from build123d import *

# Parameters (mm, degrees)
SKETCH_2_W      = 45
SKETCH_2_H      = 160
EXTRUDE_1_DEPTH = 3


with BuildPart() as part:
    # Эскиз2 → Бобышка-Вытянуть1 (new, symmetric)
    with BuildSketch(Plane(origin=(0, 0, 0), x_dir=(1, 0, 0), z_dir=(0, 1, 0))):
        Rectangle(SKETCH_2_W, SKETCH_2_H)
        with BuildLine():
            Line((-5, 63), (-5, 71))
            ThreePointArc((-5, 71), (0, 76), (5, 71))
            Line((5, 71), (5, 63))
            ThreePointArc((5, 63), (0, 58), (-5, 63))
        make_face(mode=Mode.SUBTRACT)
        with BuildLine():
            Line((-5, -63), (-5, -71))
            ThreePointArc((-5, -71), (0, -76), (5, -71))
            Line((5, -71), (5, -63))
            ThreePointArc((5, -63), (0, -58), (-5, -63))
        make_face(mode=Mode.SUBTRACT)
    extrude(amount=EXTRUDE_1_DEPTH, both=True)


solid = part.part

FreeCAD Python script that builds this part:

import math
import FreeCAD as App
import Part
import Sketcher
Q = App.Units.Quantity


def add_polygon(sketch, points):
    """Adds a closed chain of lines whose ends are joined by coincident constraints."""
    first, n = sketch.GeometryCount, len(points)
    for a, b in zip(points, points[1:] + points[:1]):
        sketch.addGeometry(Part.LineSegment(App.Vector(*a, 0), App.Vector(*b, 0)), False)
    for i in range(n):
        sketch.addConstraint(Sketcher.Constraint("Coincident", first + i, 2, first + (i + 1) % n, 1))

doc = App.newDocument("Part")
body = doc.addObject("PartDesign::Body", "Body")

sketch1 = doc.addObject("Sketcher::SketchObject", "Sketch")
body.addObject(sketch1)
sketch1.AttachmentSupport = (doc.XZ_Plane, [""])
sketch1.MapMode = "FlatFace"
add_polygon(sketch1, [(-22, -80), (-22, 80), (22, 80), (22, -80)])
sketch1.addGeometry(Part.LineSegment(App.Vector(-5, 71, 0), App.Vector(-5, 63, 0)), False)
sketch1.addGeometry(Part.ArcOfCircle(Part.Circle(App.Vector(0, 63, 0), App.Vector(0, 0, 1), 5), math.radians(180), math.radians(360)), False)
sketch1.addGeometry(Part.LineSegment(App.Vector(5, 63, 0), App.Vector(5, 71, 0)), False)
sketch1.addGeometry(Part.ArcOfCircle(Part.Circle(App.Vector(0, 71, 0), App.Vector(0, 0, 1), 5), math.radians(0), math.radians(180)), False)
sketch1.addGeometry(Part.ArcOfCircle(Part.Circle(App.Vector(0, -63, 0), App.Vector(0, 0, 1), 5), math.radians(0), math.radians(180)), False)
sketch1.addGeometry(Part.LineSegment(App.Vector(-5, -63, 0), App.Vector(-5, -71, 0)), False)
sketch1.addGeometry(Part.ArcOfCircle(Part.Circle(App.Vector(0, -71, 0), App.Vector(0, 0, 1), 5), math.radians(180), math.radians(360)), False)
sketch1.addGeometry(Part.LineSegment(App.Vector(5, -71, 0), App.Vector(5, -63, 0)), False)
sketch1.addConstraint([
    Sketcher.Constraint("Tangent", 4, 2, 5, 1),
    Sketcher.Constraint("Tangent", 5, 2, 6, 1),
    Sketcher.Constraint("Tangent", 6, 2, 7, 1),
    Sketcher.Constraint("Tangent", 7, 2, 4, 1),
    Sketcher.Constraint("Tangent", 8, 2, 9, 1),
    Sketcher.Constraint("Tangent", 9, 2, 10, 1),
    Sketcher.Constraint("Tangent", 10, 2, 11, 1),
    Sketcher.Constraint("Tangent", 11, 2, 8, 1),
    Sketcher.Constraint("Vertical", 0),
    Sketcher.Constraint("Horizontal", 1),
    Sketcher.Constraint("Vertical", 2),
    Sketcher.Constraint("Horizontal", 3),
    Sketcher.Constraint("Vertical", 4),
    Sketcher.Constraint("Vertical", 6),
    Sketcher.Constraint("Vertical", 9),
    Sketcher.Constraint("Vertical", 11),
    Sketcher.Constraint("Equal", 7, 8),
    Sketcher.Constraint("Symmetric", 5, 3, 8, 3, -1, 1),
    Sketcher.Constraint("Symmetric", 0, 2, 2, 2, -1, 1),
    Sketcher.Constraint("Symmetric", 7, 3, 10, 3, -1),
    Sketcher.Constraint("Radius", 5, Q("5 mm")),
    Sketcher.Constraint("DistanceX", 1, 1, 1, 2, Q("45 mm")),
    Sketcher.Constraint("DistanceY", 0, 1, 0, 2, Q("160 mm")),
    Sketcher.Constraint("DistanceY", 4, 2, 4, 1, Q("8 mm")),
    Sketcher.Constraint("DistanceY", -1, 1, 5, 3, Q("63 mm")),
])
pad1 = doc.addObject("PartDesign::Pad", "Pad")
body.addObject(pad1)
pad1.Profile = sketch1
pad1.Length = 6
pad1.Midplane = True

doc.recompute()
